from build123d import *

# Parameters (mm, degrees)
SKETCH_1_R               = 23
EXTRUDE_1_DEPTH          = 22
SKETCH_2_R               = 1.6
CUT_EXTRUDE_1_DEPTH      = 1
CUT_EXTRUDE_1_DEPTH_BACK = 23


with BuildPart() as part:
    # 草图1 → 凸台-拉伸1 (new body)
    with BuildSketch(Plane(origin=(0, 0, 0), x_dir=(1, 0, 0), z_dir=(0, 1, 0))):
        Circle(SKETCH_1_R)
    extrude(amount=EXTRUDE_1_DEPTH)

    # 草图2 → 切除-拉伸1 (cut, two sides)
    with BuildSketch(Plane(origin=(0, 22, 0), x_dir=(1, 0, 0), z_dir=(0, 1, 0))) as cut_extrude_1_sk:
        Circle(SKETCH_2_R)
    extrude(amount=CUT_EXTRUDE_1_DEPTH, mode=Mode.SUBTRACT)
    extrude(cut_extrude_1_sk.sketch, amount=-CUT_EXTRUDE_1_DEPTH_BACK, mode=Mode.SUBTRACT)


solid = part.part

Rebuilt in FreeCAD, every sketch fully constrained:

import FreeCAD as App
import Part
import Sketcher
Q = App.Units.Quantity

doc = App.newDocument("Part")
params = doc.addObject("Spreadsheet::Sheet", "Params")
for row, (alias, value) in enumerate([
    ("sketch1_diameter", "46 mm"),
    ("pad1_length", "22 mm"),
    ("sketch2_diameter", "3.2 mm"),
], start=1):
    params.set(f"A{row}", alias)
    params.set(f"B{row}", "=" + value)
    params.setAlias(f"B{row}", alias)

body = doc.addObject("PartDesign::Body", "Body")

sketch1 = body.newObject("Sketcher::SketchObject", "Sketch")
sketch1.AttachmentSupport = (doc.getObject("XZ_Plane"), [""])
sketch1.MapMode = "FlatFace"
sketch1.addGeometry(Part.Circle(App.Vector(0, 0, 0), App.Vector(0, 0, 1), 23), False)
sketch1.addConstraint(Sketcher.Constraint("Coincident", 0, 3, -1, 1))
sketch1.addConstraint(Sketcher.Constraint("Diameter", 0, Q("46 mm")))
sketch1.setExpression("Constraints[1]", "Params.sketch1_diameter")
pad1 = body.newObject("PartDesign::Pad", "Pad")
pad1.Profile = sketch1
pad1.setExpression("Length", "Params.pad1_length")
pad1.Reversed = True

sketch2 = body.newObject("Sketcher::SketchObject", "Sketch001")
sketch2.AttachmentSupport = (doc.getObject("XZ_Plane"), [""])
sketch2.MapMode = "FlatFace"
sketch2.AttachmentOffset = App.Placement(App.Vector(0, 0, -22), App.Rotation())
sketch2.addGeometry(Part.Circle(App.Vector(0, 0, 0), App.Vector(0, 0, 1), 1.6), False)
sketch2.addConstraint(Sketcher.Constraint("Coincident", 0, 3, -1, 1))
sketch2.addConstraint(Sketcher.Constraint("Diameter", 0, Q("3.2 mm")))
sketch2.setExpression("Constraints[1]", "Params.sketch2_diameter")
pocket1 = body.newObject("PartDesign::Pocket", "Pocket")
pocket1.Profile = sketch2
pocket1.Type = "ThroughAll"
pocket1.Midplane = True

doc.recompute()
